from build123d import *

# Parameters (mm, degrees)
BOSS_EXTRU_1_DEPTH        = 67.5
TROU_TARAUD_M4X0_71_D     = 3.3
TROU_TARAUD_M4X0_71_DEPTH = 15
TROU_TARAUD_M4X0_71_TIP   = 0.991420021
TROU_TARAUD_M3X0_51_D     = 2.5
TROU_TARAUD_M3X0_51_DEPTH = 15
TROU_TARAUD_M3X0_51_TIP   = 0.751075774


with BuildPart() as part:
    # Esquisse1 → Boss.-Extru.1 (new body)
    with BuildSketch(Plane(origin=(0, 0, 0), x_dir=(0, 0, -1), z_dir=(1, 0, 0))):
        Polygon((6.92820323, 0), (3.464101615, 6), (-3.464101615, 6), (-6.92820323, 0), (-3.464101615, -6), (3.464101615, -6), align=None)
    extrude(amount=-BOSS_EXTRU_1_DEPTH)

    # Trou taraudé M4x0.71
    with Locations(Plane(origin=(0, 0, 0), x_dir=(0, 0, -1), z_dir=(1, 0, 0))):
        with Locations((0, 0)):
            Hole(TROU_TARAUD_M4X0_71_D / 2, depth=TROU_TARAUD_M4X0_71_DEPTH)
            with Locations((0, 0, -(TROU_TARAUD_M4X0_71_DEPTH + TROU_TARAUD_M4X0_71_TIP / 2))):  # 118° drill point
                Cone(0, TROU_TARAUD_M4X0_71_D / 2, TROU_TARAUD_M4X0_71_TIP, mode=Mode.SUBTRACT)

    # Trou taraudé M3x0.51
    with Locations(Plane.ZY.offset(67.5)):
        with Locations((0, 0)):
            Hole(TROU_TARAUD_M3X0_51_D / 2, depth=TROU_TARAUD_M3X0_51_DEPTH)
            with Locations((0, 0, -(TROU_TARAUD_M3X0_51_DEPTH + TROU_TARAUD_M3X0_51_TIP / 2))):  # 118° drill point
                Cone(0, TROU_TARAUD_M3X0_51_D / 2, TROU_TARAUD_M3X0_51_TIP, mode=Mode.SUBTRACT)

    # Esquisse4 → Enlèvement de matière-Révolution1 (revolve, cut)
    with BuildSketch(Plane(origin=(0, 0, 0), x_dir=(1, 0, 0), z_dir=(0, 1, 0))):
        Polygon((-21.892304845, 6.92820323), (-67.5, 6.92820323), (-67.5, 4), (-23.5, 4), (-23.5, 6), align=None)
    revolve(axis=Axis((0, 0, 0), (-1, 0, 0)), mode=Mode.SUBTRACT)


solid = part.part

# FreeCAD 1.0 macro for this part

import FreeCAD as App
import Part
import Sketcher

V = App.Vector
Q = App.Units.Quantity

doc = App.newDocument("Part")
body = doc.addObject("PartDesign::Body", "Body")

# Sketch on YZ plane
sketch1 = body.newObject("Sketcher::SketchObject", "Sketch")
sketch1.AttachmentSupport = (doc.getObject("YZ_Plane"), [""])
sketch1.MapMode = "FlatFace"
sketch1.addGeometry([
    Part.LineSegment(V(0, -7, 0), V(6, -3, 0)),  # 0
    Part.LineSegment(V(6, -3, 0), V(6, 3, 0)),  # 1
    Part.LineSegment(V(6, 3, 0), V(0, 7, 0)),  # 2
    Part.LineSegment(V(0, 7, 0), V(-6, 3, 0)),  # 3
    Part.LineSegment(V(-6, 3, 0), V(-6, -3, 0)),  # 4
    Part.LineSegment(V(-6, -3, 0), V(0, -7, 0)),  # 5
], False)
sketch1.addConstraint([
    Sketcher.Constraint("Coincident", 0, 2, 1, 1),
    Sketcher.Constraint("Coincident", 1, 2, 2, 1),
    Sketcher.Constraint("Coincident", 2, 2, 3, 1),
    Sketcher.Constraint("Coincident", 3, 2, 4, 1),
    Sketcher.Constraint("Coincident", 4, 2, 5, 1),
    Sketcher.Constraint("Coincident", 5, 2, 0, 1),
    Sketcher.Constraint("Vertical", 1),
    Sketcher.Constraint("Vertical", 4),
    Sketcher.Constraint("Symmetric", 0, 2, 3, 2, -1, 1),
    Sketcher.Constraint("Symmetric", 2, 2, 5, 2, -1, 1),
    Sketcher.Constraint("PointOnObject", 2, 2, -2),
    Sketcher.Constraint("Parallel", 2, 5),
    Sketcher.Constraint("Horizontal", 1, 2, 3, 2),
    Sketcher.Constraint("Angle", 0, Q("30 deg")),
    Sketcher.Constraint("DistanceX", -1, 1, 0, 2, Q("6 mm")),
    Sketcher.Constraint("DistanceY", 0, 2, -1, 1, Q("3.464102 mm")),
])
pad1 = body.newObject("PartDesign::Pad", "Pad")
pad1.Profile = sketch1
pad1.Length = 67.5
pad1.Reversed = True

# Sketch on YZ plane
sketch2 = body.newObject("Sketcher::SketchObject", "Sketch001")
sketch2.AttachmentSupport = (doc.getObject("YZ_Plane"), [""])
sketch2.MapMode = "FlatFace"
sketch2.addGeometry(Part.Circle(V(0, 0, 0), V(0, 0, 1), 1.6), False)
sketch2.addConstraint([
    Sketcher.Constraint("Coincident", 0, 3, -1, 1),
    Sketcher.Constraint("Diameter", 0, Q("3.3 mm")),
])
doc.recompute()
hole = body.newObject("PartDesign::Hole", "Hole")
hole.Profile = sketch2
hole.ThreadType = "None"
hole.Diameter = 3.3
hole.DepthType = "Dimension"
hole.Depth = 15
hole.DrillPoint = "Angled"
hole.DrillPointAngle = 118

# Sketch on YZ plane
sketch3 = body.newObject("Sketcher::SketchObject", "Sketch002")
sketch3.AttachmentSupport = (doc.getObject("YZ_Plane"), [""])
sketch3.MapMode = "FlatFace"
sketch3.AttachmentOffset = App.Placement(V(0, 0, -67.5), App.Rotation())
sketch3.addGeometry(Part.Circle(V(0, 0, 0), V(0, 0, 1), 1.2), False)
sketch3.addConstraint([
    Sketcher.Constraint("Coincident", 0, 3, -1, 1),
    Sketcher.Constraint("Diameter", 0, Q("2.5 mm")),
])
doc.recompute()
hole2 = body.newObject("PartDesign::Hole", "Hole001")
hole2.Profile = sketch3
hole2.ThreadType = "None"
hole2.Diameter = 2.5
hole2.DepthType = "Dimension"
hole2.Depth = 15
hole2.DrillPoint = "Angled"
hole2.DrillPointAngle = 118
hole2.Reversed = True

# Sketch on XZ plane
sketch4 = body.newObject("Sketcher::SketchObject", "Sketch003")
sketch4.AttachmentSupport = (doc.getObject("XZ_Plane"), [""])
sketch4.MapMode = "FlatFace"
sketch4.addGeometry([
    Part.LineSegment(V(-21.9, -6.9, 0), V(-67.5, -6.9, 0)),  # 0
    Part.LineSegment(V(-67.5, -6.9, 0), V(-67.5, -4, 0)),  # 1
    Part.LineSegment(V(-67.5, -4, 0), V(-23.5, -4, 0)),  # 2
    Part.LineSegment(V(-23.5, -4, 0), V(-23.5, -6, 0)),  # 3
    Part.LineSegment(V(-23.5, -6, 0), V(-21.9, -6.9, 0)),  # 4
], False)
sketch4.addConstraint([
    Sketcher.Constraint("Coincident", 0, 2, 1, 1),
    Sketcher.Constraint("Coincident", 1, 2, 2, 1),
    Sketcher.Constraint("Coincident", 2, 2, 3, 1),
    Sketcher.Constraint("Coincident", 3, 2, 4, 1),
    Sketcher.Constraint("Coincident", 4, 2, 0, 1),
    Sketcher.Constraint("Horizontal", 0),
    Sketcher.Constraint("Vertical", 1),
    Sketcher.Constraint("Horizontal", 2),
    Sketcher.Constraint("Vertical", 3),
    Sketcher.Constraint("DistanceX", 2, 1, 2, 2, Q("44 mm")),
    Sketcher.Constraint("DistanceY", 3, 2, 3, 1, Q("2 mm")),
    Sketcher.Constraint("Angle", 4, Q("-30 deg")),
    Sketcher.Constraint("DistanceY", 1, 2, -1, 1, Q("4 mm")),
    Sketcher.Constraint("DistanceX", 0, 2, -1, 1, Q("67.5 mm")),
    Sketcher.Constraint("DistanceX", 0, 2, 0, 1, Q("45.607695 mm")),
])
groove = body.newObject("PartDesign::Groove", "Groove")
groove.Profile = sketch4
groove.ReferenceAxis = (sketch4, ["H_Axis"])
groove.Angle = 360

doc.recompute()
